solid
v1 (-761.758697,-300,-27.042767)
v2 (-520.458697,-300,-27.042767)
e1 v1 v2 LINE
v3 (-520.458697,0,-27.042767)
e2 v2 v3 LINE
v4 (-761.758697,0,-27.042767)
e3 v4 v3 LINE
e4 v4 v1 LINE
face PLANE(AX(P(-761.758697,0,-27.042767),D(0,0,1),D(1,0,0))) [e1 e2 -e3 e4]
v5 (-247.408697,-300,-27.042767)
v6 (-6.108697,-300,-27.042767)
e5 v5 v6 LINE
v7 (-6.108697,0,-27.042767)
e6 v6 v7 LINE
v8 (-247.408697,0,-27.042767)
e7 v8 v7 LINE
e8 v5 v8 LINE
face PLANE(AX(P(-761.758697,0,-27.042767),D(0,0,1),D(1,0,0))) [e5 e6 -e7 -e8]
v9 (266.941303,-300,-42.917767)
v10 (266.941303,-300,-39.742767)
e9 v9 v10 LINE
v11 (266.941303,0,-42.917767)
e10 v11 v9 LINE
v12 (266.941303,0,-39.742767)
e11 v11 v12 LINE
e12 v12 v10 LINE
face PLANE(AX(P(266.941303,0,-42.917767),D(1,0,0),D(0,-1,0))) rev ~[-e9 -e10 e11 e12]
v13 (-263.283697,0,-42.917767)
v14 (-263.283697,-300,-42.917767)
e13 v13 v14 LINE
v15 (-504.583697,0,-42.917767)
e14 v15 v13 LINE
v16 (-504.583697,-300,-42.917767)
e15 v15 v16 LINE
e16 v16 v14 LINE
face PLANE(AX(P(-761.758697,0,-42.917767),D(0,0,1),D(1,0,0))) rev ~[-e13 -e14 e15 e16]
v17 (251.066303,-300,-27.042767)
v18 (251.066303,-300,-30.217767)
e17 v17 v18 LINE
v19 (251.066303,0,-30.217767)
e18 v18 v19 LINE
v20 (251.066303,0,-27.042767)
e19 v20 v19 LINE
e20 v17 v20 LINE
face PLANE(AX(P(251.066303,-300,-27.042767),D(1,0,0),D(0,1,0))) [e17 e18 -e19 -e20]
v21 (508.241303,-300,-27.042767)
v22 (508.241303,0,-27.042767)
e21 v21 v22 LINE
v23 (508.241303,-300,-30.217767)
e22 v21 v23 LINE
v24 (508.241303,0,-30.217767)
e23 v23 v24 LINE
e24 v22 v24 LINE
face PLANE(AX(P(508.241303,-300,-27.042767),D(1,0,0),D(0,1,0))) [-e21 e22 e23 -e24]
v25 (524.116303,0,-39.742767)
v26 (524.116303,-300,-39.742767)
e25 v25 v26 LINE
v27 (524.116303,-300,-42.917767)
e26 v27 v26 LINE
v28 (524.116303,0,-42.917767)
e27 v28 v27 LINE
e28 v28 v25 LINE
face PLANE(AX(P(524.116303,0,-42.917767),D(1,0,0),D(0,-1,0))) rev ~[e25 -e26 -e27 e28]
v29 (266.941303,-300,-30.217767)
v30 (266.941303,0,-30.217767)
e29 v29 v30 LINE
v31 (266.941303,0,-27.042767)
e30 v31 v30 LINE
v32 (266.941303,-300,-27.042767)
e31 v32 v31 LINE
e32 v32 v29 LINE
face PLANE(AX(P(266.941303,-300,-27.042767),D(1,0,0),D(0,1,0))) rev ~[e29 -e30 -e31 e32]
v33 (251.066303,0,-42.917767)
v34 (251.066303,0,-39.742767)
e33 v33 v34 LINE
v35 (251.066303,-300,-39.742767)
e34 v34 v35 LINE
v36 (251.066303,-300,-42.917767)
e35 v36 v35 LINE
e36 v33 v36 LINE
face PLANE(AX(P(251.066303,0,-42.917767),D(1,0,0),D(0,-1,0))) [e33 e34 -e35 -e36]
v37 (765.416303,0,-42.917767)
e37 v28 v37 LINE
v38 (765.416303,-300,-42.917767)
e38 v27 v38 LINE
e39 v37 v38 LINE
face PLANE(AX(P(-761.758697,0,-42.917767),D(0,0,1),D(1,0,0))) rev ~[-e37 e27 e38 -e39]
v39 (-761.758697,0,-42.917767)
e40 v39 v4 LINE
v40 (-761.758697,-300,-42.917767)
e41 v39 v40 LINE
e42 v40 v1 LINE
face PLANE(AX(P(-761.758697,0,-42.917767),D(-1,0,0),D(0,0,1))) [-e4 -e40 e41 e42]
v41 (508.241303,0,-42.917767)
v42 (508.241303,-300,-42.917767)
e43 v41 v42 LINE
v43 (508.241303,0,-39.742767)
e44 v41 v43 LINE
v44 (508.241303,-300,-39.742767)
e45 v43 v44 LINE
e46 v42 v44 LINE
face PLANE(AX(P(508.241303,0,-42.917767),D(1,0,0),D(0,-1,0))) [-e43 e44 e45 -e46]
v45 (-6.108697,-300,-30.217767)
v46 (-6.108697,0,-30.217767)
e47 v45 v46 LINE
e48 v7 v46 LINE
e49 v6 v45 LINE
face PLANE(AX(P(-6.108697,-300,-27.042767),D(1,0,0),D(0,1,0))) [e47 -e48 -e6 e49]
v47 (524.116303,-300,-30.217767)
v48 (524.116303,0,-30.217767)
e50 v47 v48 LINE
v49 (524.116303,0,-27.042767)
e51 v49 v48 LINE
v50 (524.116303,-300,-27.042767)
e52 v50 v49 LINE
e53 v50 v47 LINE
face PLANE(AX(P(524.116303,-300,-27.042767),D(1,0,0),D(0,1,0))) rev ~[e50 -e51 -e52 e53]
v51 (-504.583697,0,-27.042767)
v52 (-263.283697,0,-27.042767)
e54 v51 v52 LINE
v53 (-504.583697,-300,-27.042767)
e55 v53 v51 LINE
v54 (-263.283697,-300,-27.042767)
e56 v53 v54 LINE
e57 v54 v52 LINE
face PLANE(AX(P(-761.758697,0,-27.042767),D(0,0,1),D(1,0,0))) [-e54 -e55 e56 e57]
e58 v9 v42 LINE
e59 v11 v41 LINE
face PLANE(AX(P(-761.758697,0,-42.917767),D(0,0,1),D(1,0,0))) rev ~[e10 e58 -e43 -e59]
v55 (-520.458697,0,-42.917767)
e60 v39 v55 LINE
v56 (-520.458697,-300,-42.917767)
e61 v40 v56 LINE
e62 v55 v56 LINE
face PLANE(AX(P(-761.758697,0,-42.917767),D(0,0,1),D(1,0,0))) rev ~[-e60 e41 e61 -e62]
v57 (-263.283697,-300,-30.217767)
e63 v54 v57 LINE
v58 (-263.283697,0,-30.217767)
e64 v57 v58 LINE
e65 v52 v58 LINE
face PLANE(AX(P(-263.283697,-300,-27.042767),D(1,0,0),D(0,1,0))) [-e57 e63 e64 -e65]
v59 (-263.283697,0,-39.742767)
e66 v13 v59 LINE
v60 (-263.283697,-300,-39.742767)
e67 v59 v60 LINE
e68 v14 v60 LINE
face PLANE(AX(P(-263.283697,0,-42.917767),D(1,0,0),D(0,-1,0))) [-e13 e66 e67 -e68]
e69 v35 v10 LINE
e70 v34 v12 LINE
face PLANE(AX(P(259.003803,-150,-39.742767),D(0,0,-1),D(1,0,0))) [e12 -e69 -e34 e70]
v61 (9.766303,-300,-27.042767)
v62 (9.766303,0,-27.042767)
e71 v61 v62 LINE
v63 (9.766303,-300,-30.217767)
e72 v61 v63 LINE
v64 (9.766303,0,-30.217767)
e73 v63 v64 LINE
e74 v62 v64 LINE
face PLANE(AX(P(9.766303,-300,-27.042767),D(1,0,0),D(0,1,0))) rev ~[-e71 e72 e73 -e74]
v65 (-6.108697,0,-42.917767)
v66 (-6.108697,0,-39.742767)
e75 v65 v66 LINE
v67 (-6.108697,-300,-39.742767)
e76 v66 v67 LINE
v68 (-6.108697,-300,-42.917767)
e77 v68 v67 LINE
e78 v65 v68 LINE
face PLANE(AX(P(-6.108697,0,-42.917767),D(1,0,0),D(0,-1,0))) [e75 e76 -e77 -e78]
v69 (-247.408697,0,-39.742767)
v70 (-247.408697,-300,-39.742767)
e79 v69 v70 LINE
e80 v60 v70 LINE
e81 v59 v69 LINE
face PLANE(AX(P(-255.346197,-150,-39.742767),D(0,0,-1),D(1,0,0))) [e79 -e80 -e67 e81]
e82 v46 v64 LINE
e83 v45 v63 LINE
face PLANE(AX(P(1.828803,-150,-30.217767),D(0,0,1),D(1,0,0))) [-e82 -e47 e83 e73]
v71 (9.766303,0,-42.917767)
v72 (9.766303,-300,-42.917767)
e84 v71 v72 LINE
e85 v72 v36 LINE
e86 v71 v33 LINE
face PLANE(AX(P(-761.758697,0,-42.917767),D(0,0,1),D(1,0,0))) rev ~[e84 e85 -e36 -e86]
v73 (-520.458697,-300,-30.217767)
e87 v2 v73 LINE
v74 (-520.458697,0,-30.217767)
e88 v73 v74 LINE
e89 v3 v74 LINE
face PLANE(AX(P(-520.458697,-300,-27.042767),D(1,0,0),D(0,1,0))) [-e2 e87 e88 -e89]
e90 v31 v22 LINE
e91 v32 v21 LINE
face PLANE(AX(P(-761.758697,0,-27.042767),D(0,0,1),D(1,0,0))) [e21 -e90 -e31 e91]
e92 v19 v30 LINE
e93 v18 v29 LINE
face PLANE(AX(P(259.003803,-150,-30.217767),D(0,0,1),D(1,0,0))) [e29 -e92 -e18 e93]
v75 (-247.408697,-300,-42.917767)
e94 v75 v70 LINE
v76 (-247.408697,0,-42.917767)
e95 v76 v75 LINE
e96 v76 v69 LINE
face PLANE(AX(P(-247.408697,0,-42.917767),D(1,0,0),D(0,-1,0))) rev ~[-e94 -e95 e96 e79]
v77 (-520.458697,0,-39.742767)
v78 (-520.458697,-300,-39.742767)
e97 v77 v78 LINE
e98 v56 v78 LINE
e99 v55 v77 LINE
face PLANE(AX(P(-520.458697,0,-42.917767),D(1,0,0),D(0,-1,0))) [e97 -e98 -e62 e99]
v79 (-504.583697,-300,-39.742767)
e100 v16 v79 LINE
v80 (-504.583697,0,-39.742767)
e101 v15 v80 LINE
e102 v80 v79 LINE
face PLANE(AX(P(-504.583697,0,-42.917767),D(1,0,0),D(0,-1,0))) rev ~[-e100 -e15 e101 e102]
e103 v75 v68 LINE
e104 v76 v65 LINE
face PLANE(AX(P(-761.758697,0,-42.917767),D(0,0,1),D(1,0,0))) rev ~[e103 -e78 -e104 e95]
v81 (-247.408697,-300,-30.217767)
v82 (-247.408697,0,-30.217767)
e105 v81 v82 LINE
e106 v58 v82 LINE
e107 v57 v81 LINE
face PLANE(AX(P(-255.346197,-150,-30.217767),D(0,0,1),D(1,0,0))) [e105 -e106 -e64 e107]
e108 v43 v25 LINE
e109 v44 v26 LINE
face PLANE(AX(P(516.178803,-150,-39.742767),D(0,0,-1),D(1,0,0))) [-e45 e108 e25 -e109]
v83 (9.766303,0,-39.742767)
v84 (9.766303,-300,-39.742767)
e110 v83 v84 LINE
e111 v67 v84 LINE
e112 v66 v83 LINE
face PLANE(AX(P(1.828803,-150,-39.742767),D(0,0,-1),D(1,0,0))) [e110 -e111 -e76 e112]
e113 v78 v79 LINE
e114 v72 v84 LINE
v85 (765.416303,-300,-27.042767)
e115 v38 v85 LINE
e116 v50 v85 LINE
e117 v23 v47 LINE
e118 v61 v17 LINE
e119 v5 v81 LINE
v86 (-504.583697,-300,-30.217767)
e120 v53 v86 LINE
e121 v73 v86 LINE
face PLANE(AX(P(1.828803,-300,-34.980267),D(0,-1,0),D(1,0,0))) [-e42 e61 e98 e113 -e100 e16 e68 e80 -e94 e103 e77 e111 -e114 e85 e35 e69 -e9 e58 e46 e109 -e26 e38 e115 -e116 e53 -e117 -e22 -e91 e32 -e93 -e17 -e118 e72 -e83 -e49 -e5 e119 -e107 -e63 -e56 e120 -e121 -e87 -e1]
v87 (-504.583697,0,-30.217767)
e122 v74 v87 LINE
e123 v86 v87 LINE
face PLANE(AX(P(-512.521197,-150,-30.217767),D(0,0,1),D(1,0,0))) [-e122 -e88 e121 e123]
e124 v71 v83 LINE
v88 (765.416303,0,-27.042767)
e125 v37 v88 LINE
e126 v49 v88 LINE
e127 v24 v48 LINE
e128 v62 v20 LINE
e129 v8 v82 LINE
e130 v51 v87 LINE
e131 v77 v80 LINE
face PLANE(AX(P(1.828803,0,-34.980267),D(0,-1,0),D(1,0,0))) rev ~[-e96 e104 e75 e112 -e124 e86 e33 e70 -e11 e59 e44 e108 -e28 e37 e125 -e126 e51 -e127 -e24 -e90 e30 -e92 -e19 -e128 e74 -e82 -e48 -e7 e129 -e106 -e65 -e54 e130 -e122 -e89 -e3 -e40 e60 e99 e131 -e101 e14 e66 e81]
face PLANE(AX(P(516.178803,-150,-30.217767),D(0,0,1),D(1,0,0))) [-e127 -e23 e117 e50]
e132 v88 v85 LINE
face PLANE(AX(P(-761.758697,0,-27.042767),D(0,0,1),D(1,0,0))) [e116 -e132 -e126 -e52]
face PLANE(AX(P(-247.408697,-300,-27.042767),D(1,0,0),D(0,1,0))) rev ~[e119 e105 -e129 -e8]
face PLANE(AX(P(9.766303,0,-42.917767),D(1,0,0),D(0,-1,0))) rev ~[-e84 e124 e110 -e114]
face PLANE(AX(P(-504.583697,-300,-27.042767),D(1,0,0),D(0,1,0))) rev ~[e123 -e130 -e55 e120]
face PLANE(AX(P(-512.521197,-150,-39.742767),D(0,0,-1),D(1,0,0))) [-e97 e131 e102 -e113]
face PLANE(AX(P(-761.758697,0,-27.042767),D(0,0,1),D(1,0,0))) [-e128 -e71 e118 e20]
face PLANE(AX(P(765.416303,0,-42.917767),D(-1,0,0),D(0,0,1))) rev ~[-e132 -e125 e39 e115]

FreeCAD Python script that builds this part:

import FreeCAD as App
import Part
import Sketcher
from FreeCAD import Vector
Q = App.Units.Quantity


def add_polygon(sketch, points):
    """Adds a closed chain of lines whose ends are joined by coincident constraints."""
    first, n = sketch.GeometryCount, len(points)
    for a, b in zip(points, points[1:] + points[:1]):
        sketch.addGeometry(Part.LineSegment(App.Vector(*a, 0), App.Vector(*b, 0)), False)
    for i in range(n):
        sketch.addConstraint(Sketcher.Constraint("Coincident", first + i, 2, first + (i + 1) % n, 1))

doc = App.newDocument("Part")
body = doc.addObject("PartDesign::Body", "Body")

sketch1 = body.newObject("Sketcher::SketchObject", "Sketch")
sketch1.AttachmentSupport = (doc.getObject("XZ_Plane"), [""])
sketch1.MapMode = "FlatFace"
add_polygon(sketch1, [(-761.758697, -27.042767), (-761.758697, -42.917767), (765.416303, -42.917767), (765.416303, -27.042767)])
sketch1.addConstraint([
    Sketcher.Constraint("Vertical", 0),
    Sketcher.Constraint("Horizontal", 1),
    Sketcher.Constraint("Vertical", 2),
    Sketcher.Constraint("Horizontal", 3),
    Sketcher.Constraint("DistanceX", 1, 1, 1, 2, Q("60.125 in")),
    Sketcher.Constraint("DistanceY", 0, 2, 0, 1, Q("0.625 in")),
    Sketcher.Constraint("DistanceX", 0, 2, -1, 1, Q("29.9904999 in")),
    Sketcher.Constraint("DistanceY", 0, 2, -1, 1, 42.917767),
])
pad1 = body.newObject("PartDesign::Pad", "Pad")
pad1.Profile = sketch1
pad1.Length = 300

sketch2 = body.newObject("Sketcher::SketchObject", "Sketch001")
sketch2.AttachmentSupport = (doc.getObject("XY_Plane"), [""])
sketch2.MapMode = "FlatFace"
sketch2.AttachmentOffset = App.Placement(Vector(0, 0, -42.917767), App.Rotation())
add_polygon(sketch2, [(-263.283697, -300), (-263.283697, 0), (-247.408697, 0), (-247.408697, -300)])
add_polygon(sketch2, [(-6.108697, -300), (-6.108697, 0), (9.766303, 0), (9.766303, -300)])
add_polygon(sketch2, [(-520.458697, -300), (-520.458697, 0), (-504.583697, 0), (-504.583697, -300)])
add_polygon(sketch2, [(251.066303, -300), (251.066303, 0), (266.941303, 0), (266.941303, -300)])
add_polygon(sketch2, [(508.241303, -300), (508.241303, 0), (524.116303, 0), (524.116303, -300)])
sketch2.addConstraint([
    Sketcher.Constraint("Vertical", 0),
    Sketcher.Constraint("Horizontal", 1),
    Sketcher.Constraint("Vertical", 2),
    Sketcher.Constraint("Horizontal", 3),
    Sketcher.Constraint("Vertical", 4),
    Sketcher.Constraint("Horizontal", 5),
    Sketcher.Constraint("Vertical", 6),
    Sketcher.Constraint("Horizontal", 7),
    Sketcher.Constraint("Vertical", 8),
    Sketcher.Constraint("Horizontal", 9),
    Sketcher.Constraint("Vertical", 10),
    Sketcher.Constraint("Horizontal", 11),
    Sketcher.Constraint("Vertical", 12),
    Sketcher.Constraint("Horizontal", 13),
    Sketcher.Constraint("Vertical", 14),
    Sketcher.Constraint("Horizontal", 15),
    Sketcher.Constraint("Vertical", 16),
    Sketcher.Constraint("Horizontal", 17),
    Sketcher.Constraint("Vertical", 18),
    Sketcher.Constraint("Horizontal", 19),
    Sketcher.Constraint("PointOnObject", 0, 2, -1),
    Sketcher.Constraint("PointOnObject", 4, 2, -1),
    Sketcher.Constraint("PointOnObject", 8, 2, -1),
    Sketcher.Constraint("PointOnObject", 12, 2, -1),
    Sketcher.Constraint("PointOnObject", 16, 2, -1),
    Sketcher.Constraint("Horizontal", 3, 2, 6, 2),
    Sketcher.Constraint("Horizontal", 7, 2, 10, 2),
    Sketcher.Constraint("Horizontal", 11, 2, 14, 2),
    Sketcher.Constraint("Horizontal", 15, 2, 18, 2),
    Sketcher.Constraint("Equal", 3, 5),
    Sketcher.Constraint("Equal", 7, 9),
    Sketcher.Constraint("Equal", 11, 13),
    Sketcher.Constraint("Equal", 15, 17),
    Sketcher.Constraint("DistanceX", 1, 2, 4, 2, Q("9.5 in")),
    Sketcher.Constraint("DistanceX", 9, 2, 0, 2, Q("9.5 in")),
    Sketcher.Constraint("DistanceX", 5, 2, 12, 2, Q("9.5 in")),
    Sketcher.Constraint("DistanceX", 13, 2, 16, 2, Q("9.5 in")),
    Sketcher.Constraint("DistanceX", 1, 1, 1, 2, Q("0.625 in")),
    Sketcher.Constraint("DistanceY", 0, 1, 0, 2, 300.0),
    Sketcher.Constraint("DistanceX", 0, 2, -1, 1, Q("10.3654999 in")),
])
pocket1 = body.newObject("PartDesign::Pocket", "Pocket")
pocket1.Profile = sketch2
pocket1.Length = Q("0.125 in")
pocket1.Reversed = True

sketch3 = body.newObject("Sketcher::SketchObject", "Sketch002")
sketch3.AttachmentSupport = (doc.getObject("XY_Plane"), [""])
sketch3.MapMode = "FlatFace"
sketch3.AttachmentOffset = App.Placement(Vector(0, 0, -27.042767), App.Rotation())
add_polygon(sketch3, [(-520.458697, 0), (-520.458697, -300), (-504.583697, -300), (-504.583697, 0)])
add_polygon(sketch3, [(-263.283697, 0), (-263.283697, -300), (-247.408697, -300), (-247.408697, 0)])
add_polygon(sketch3, [(-6.108697, 0), (-6.108697, -300), (9.766303, -300), (9.766303, 0)])
add_polygon(sketch3, [(251.066303, 0), (251.066303, -300), (266.941303, -300), (266.941303, 0)])
add_polygon(sketch3, [(508.241303, 0), (508.241303, -300), (524.116303, -300), (524.116303, 0)])
sketch3.addConstraint([
    Sketcher.Constraint("Vertical", 0),
    Sketcher.Constraint("Horizontal", 1),
    Sketcher.Constraint("Vertical", 2),
    Sketcher.Constraint("Horizontal", 3),
    Sketcher.Constraint("Vertical", 4),
    Sketcher.Constraint("Horizontal", 5),
    Sketcher.Constraint("Vertical", 6),
    Sketcher.Constraint("Horizontal", 7),
    Sketcher.Constraint("Vertical", 8),
    Sketcher.Constraint("Horizontal", 9),
    Sketcher.Constraint("Vertical", 10),
    Sketcher.Constraint("Horizontal", 11),
    Sketcher.Constraint("Vertical", 12),
    Sketcher.Constraint("Horizontal", 13),
    Sketcher.Constraint("Vertical", 14),
    Sketcher.Constraint("Horizontal", 15),
    Sketcher.Constraint("Vertical", 16),
    Sketcher.Constraint("Horizontal", 17),
    Sketcher.Constraint("Vertical", 18),
    Sketcher.Constraint("Horizontal", 19),
    Sketcher.Constraint("PointOnObject", 2, 2, -1),
    Sketcher.Constraint("PointOnObject", 6, 2, -1),
    Sketcher.Constraint("PointOnObject", 10, 2, -1),
    Sketcher.Constraint("PointOnObject", 14, 2, -1),
    Sketcher.Constraint("PointOnObject", 18, 2, -1),
    Sketcher.Constraint("Horizontal", 1, 2, 4, 2),
    Sketcher.Constraint("Horizontal", 5, 2, 8, 2),
    Sketcher.Constraint("Horizontal", 9, 2, 12, 2),
    Sketcher.Constraint("Horizontal", 13, 2, 16, 2),
    Sketcher.Constraint("Equal", 3, 5),
    Sketcher.Constraint("Equal", 7, 9),
    Sketcher.Constraint("Equal", 11, 13),
    Sketcher.Constraint("Equal", 15, 17),
    Sketcher.Constraint("DistanceX", 1, 2, 4, 2, Q("9.5 in")),
    Sketcher.Constraint("DistanceX", 5, 2, 8, 2, Q("9.5 in")),
    Sketcher.Constraint("DistanceX", 9, 2, 12, 2, Q("9.5 in")),
    Sketcher.Constraint("DistanceX", 13, 2, 16, 2, Q("9.5 in")),
    Sketcher.Constraint("DistanceX", 1, 1, 1, 2, Q("0.625 in")),
    Sketcher.Constraint("DistanceY", 0, 2, 0, 1, 300.0),
    Sketcher.Constraint("DistanceX", 0, 2, -1, 1, Q("20.4904999 in")),
])
pocket2 = body.newObject("PartDesign::Pocket", "Pocket001")
pocket2.Profile = sketch3
pocket2.Length = Q("0.125 in")

doc.recompute()
